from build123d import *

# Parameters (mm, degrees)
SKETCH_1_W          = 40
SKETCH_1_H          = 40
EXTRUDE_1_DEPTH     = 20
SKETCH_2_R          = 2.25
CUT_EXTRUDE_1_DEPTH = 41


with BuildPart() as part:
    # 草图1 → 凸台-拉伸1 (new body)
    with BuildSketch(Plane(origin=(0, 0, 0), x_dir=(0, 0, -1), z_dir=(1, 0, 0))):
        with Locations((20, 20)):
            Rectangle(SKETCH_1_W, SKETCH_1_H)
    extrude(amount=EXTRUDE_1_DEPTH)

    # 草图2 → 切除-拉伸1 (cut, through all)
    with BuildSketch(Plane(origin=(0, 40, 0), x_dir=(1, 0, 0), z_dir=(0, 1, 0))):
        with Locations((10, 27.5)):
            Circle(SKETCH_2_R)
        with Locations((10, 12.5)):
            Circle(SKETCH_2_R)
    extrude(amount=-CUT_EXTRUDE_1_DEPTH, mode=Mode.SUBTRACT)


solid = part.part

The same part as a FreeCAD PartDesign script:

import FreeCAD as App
import Part
import Sketcher
Q = App.Units.Quantity


def add_polygon(sketch, points):
    """Adds a closed chain of lines whose ends are joined by coincident constraints."""
    first, n = sketch.GeometryCount, len(points)
    for a, b in zip(points, points[1:] + points[:1]):
        sketch.addGeometry(Part.LineSegment(App.Vector(*a, 0), App.Vector(*b, 0)), False)
    for i in range(n):
        sketch.addConstraint(Sketcher.Constraint("Coincident", first + i, 2, first + (i + 1) % n, 1))

doc = App.newDocument("Part")
body = doc.addObject("PartDesign::Body", "Body")

sketch1 = body.newObject("Sketcher::SketchObject", "Sketch")
sketch1.AttachmentSupport = (doc.getObject("YZ_Plane"), [""])
sketch1.MapMode = "FlatFace"
add_polygon(sketch1, [(40, 0), (0, 0), (0, -40), (40, -40)])
sketch1.addConstraint([
    Sketcher.Constraint("Horizontal", 0),
    Sketcher.Constraint("Vertical", 1),
    Sketcher.Constraint("Horizontal", 2),
    Sketcher.Constraint("Vertical", 3),
    Sketcher.Constraint("Coincident", 0, 2, -1, 1),
    Sketcher.Constraint("Equal", 2, 1),
    Sketcher.Constraint("DistanceX", 0, 2, 0, 1, Q("40 mm")),
])
pad1 = body.newObject("PartDesign::Pad", "Pad")
pad1.Profile = sketch1
pad1.Length = 20

sketch2 = body.newObject("Sketcher::SketchObject", "Sketch001")
sketch2.AttachmentSupport = (doc.getObject("XZ_Plane"), [""])
sketch2.MapMode = "FlatFace"
sketch2.AttachmentOffset = App.Placement(App.Vector(0, 0, -40), App.Rotation())
sketch2.addGeometry([
    Part.Circle(App.Vector(10, -27.5, 0), App.Vector(0, 0, 1), 2.2),
    Part.Circle(App.Vector(10, -12.5, 0), App.Vector(0, 0, 1), 2.2),
], False)
sketch2.addConstraint([
    Sketcher.Constraint("Equal", 0, 1),
    Sketcher.Constraint("Vertical", 0, 3, 1, 3),
    Sketcher.Constraint("Diameter", 0, Q("4.5 mm")),
    Sketcher.Constraint("DistanceX", -1, 1, 0, 3, Q("10 mm")),
    Sketcher.Constraint("DistanceY", 0, 3, 1, 3, Q("15 mm")),
    Sketcher.Constraint("DistanceY", 0, 3, -1, 1, Q("27.5 mm")),
])
pocket1 = body.newObject("PartDesign::Pocket", "Pocket")
pocket1.Profile = sketch2
pocket1.Type = "ThroughAll"
pocket1.Reversed = True

doc.recompute()
